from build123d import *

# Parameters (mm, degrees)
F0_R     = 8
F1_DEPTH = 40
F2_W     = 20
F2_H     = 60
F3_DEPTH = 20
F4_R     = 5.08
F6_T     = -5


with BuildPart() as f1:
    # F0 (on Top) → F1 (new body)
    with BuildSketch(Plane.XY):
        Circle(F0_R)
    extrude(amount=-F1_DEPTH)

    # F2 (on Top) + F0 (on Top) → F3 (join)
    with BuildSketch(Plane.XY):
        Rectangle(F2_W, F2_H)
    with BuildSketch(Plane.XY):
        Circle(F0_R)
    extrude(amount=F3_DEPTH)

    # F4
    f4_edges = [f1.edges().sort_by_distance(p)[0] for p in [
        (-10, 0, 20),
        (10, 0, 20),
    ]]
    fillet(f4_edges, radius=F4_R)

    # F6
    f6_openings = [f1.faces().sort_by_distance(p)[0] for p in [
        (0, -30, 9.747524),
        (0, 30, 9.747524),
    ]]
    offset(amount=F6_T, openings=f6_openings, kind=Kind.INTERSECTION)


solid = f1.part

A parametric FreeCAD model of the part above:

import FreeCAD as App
import Part
import Sketcher
from FreeCAD import Vector


def edges_at(feature, points):
    """Names of the edges that pass closest to the given points."""
    edges = feature.Shape.Edges
    near = lambda p: min(range(len(edges)), key=lambda i: edges[i].distToShape(Part.Vertex(*p))[0])
    return sorted({f"Edge{near(p) + 1}" for p in points})


def faces_at(feature, points):
    """Names of the faces that lie closest to the given points."""
    faces = feature.Shape.Faces
    near = lambda p: min(range(len(faces)), key=lambda i: faces[i].distToShape(Part.Vertex(*p))[0])
    return sorted({f"Face{near(p) + 1}" for p in points})


def add_polygon(sketch, points):
    """Adds a closed chain of lines whose ends are joined by coincident constraints."""
    first, n = sketch.GeometryCount, len(points)
    for a, b in zip(points, points[1:] + points[:1]):
        sketch.addGeometry(Part.LineSegment(App.Vector(*a, 0), App.Vector(*b, 0)), False)
    for i in range(n):
        sketch.addConstraint(Sketcher.Constraint("Coincident", first + i, 2, first + (i + 1) % n, 1))

doc = App.newDocument("Part")
params = doc.addObject("Spreadsheet::Sheet", "Params")
for row, (alias, value) in enumerate([
    ("sketch1_diameter", "16 mm"),
    ("pad1_length", "40 mm"),
    ("sketch2_width", "20 mm"),
    ("sketch2_height", "60 mm"),
    ("pad2_length", "20 mm"),
    ("fillet_radius", "5.08 mm"),
    ("thickness_wall", "5 mm"),
], start=1):
    params.set(f"A{row}", alias)
    params.set(f"B{row}", "=" + value)
    params.setAlias(f"B{row}", alias)

body = doc.addObject("PartDesign::Body", "Body")

# Sketch on XY plane
sketch1 = body.newObject("Sketcher::SketchObject", "Sketch")
sketch1.AttachmentSupport = (doc.getObject("XY_Plane"), [""])
sketch1.MapMode = "FlatFace"
sketch1.addGeometry(Part.Circle(Vector(0, 0, 0), Vector(0, 0, 1), 8), False)
sketch1.addConstraint(Sketcher.Constraint("Coincident", 0, 3, -1, 1))
sketch1.addConstraint(Sketcher.Constraint("Diameter", 0, 16.0))
sketch1.setExpression("Constraints[1]", "Params.sketch1_diameter")
pad1 = body.newObject("PartDesign::Pad", "Pad")
pad1.Profile = sketch1
pad1.setExpression("Length", "Params.pad1_length")
pad1.Reversed = True

# Sketch on XY plane
sketch2 = body.newObject("Sketcher::SketchObject", "Sketch001")
sketch2.AttachmentSupport = (doc.getObject("XY_Plane"), [""])
sketch2.MapMode = "FlatFace"
add_polygon(sketch2, [(-10, 30), (-10, -30), (10, -30), (10, 30)])  # lines 0-3
sketch2.addConstraint(Sketcher.Constraint("Vertical", 0))
sketch2.addConstraint(Sketcher.Constraint("Horizontal", 1))
sketch2.addConstraint(Sketcher.Constraint("Vertical", 2))
sketch2.addConstraint(Sketcher.Constraint("Horizontal", 3))
sketch2.addConstraint(Sketcher.Constraint("Symmetric", 0, 2, 2, 2, -1, 1))
sketch2.addConstraint(Sketcher.Constraint("DistanceX", 1, 1, 1, 2, 20.0))
sketch2.addConstraint(Sketcher.Constraint("DistanceY", 0, 2, 0, 1, 60.0))
sketch2.setExpression("Constraints[9]", "Params.sketch2_width")
sketch2.setExpression("Constraints[10]", "Params.sketch2_height")
pad2 = body.newObject("PartDesign::Pad", "Pad001")
pad2.Profile = sketch2
pad2.setExpression("Length", "Params.pad2_length")
doc.recompute()

fillet = body.newObject("PartDesign::Fillet", "Fillet")
fillet.Base = (pad2, edges_at(pad2, [(-10, 0, 20), (10, 0, 20)]))
fillet.setExpression("Radius", "Params.fillet_radius")
doc.recompute()

thickness = body.newObject("PartDesign::Thickness", "Thickness")
thickness.Base = (fillet, faces_at(fillet, [(0, -30, 10), (0, 30, 10)]))
thickness.setExpression("Value", "Params.thickness_wall")
thickness.Reversed = True
thickness.Join = "Intersection"

doc.recompute()
